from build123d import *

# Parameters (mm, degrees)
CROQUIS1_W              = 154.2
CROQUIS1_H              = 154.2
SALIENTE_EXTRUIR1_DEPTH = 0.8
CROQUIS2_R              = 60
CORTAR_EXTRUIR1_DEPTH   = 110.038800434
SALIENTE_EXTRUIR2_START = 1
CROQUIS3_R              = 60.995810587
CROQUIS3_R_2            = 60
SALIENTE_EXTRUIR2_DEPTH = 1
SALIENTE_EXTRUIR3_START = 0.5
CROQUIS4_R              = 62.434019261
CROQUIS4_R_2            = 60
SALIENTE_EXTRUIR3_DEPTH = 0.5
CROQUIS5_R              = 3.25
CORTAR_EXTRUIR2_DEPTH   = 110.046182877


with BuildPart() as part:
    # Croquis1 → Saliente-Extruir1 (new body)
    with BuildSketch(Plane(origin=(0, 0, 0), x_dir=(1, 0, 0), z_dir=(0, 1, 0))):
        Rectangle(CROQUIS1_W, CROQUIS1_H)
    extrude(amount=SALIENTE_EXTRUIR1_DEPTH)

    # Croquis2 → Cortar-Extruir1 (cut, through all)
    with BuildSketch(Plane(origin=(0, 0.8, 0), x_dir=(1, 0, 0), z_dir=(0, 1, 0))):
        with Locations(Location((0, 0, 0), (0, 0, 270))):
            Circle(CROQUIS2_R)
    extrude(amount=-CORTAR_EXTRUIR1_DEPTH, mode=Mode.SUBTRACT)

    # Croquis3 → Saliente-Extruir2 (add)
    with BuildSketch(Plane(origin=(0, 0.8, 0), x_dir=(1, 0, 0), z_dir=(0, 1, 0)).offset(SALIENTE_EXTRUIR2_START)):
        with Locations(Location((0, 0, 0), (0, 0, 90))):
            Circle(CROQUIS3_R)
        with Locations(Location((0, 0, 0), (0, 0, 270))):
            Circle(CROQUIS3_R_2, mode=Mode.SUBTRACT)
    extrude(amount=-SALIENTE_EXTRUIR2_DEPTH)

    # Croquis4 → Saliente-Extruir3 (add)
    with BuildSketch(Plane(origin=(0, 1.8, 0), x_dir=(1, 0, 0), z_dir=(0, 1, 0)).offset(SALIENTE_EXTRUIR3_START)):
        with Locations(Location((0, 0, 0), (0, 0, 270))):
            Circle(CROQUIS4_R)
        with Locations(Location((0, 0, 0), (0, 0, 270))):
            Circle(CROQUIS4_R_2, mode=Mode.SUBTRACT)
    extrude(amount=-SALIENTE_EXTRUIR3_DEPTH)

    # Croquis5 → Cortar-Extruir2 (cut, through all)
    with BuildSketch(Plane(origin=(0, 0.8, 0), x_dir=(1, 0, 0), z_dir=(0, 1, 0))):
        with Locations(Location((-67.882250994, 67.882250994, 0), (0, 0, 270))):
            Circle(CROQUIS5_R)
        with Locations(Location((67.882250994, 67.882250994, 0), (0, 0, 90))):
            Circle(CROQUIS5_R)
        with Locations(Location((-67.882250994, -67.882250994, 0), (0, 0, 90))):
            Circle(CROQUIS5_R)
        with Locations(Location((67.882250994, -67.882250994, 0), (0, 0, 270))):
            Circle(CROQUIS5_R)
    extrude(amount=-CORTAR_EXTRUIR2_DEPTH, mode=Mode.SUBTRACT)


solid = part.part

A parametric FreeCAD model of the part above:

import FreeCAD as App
import Part
import Sketcher
from FreeCAD import Vector
Q = App.Units.Quantity

doc = App.newDocument("Part")
body = doc.addObject("PartDesign::Body", "Body")

sketch1 = body.newObject("Sketcher::SketchObject", "Sketch")
sketch1.AttachmentSupport = (doc.getObject("XZ_Plane"), [""])
sketch1.MapMode = "FlatFace"
sketch1.addGeometry([
    Part.LineSegment(Vector(-77, -77, 0), Vector(-77, 77, 0)),
    Part.LineSegment(Vector(-77, 77, 0), Vector(77, 77, 0)),
    Part.LineSegment(Vector(77, 77, 0), Vector(77, -77, 0)),
    Part.LineSegment(Vector(77, -77, 0), Vector(-77, -77, 0)),
], False)
sketch1.addConstraint([
    Sketcher.Constraint("Coincident", 0, 2, 1, 1),
    Sketcher.Constraint("Coincident", 1, 2, 2, 1),
    Sketcher.Constraint("Coincident", 2, 2, 3, 1),
    Sketcher.Constraint("Coincident", 3, 2, 0, 1),
    Sketcher.Constraint("Vertical", 0),
    Sketcher.Constraint("Horizontal", 1),
    Sketcher.Constraint("Vertical", 2),
    Sketcher.Constraint("Horizontal", 3),
    Sketcher.Constraint("Symmetric", 0, 2, 2, 2, -1, 1),
    Sketcher.Constraint("Equal", 3, 0),
    Sketcher.Constraint("DistanceX", 1, 1, 1, 2, Q("154.2 mm")),
])
pad1 = body.newObject("PartDesign::Pad", "Pad")
pad1.Profile = sketch1
pad1.Length = 0.8
pad1.Reversed = True

sketch2 = body.newObject("Sketcher::SketchObject", "Sketch001")
sketch2.AttachmentSupport = (doc.getObject("XZ_Plane"), [""])
sketch2.MapMode = "FlatFace"
sketch2.AttachmentOffset = App.Placement(Vector(0, 0, -0.8), App.Rotation())
sketch2.addGeometry(Part.Circle(Vector(0, 0, 0), Vector(0, 0, 1), 60), False)
sketch2.addConstraint([
    Sketcher.Constraint("Coincident", 0, 3, -1, 1),
    Sketcher.Constraint("Diameter", 0, Q("120 mm")),
])
pocket1 = body.newObject("PartDesign::Pocket", "Pocket")
pocket1.Profile = sketch2
pocket1.Type = "ThroughAll"
pocket1.Reversed = True

sketch3 = body.newObject("Sketcher::SketchObject", "Sketch002")
sketch3.AttachmentSupport = (doc.getObject("XZ_Plane"), [""])
sketch3.MapMode = "FlatFace"
sketch3.AttachmentOffset = App.Placement(Vector(0, 0, -1.8), App.Rotation())
sketch3.addGeometry([
    Part.Circle(Vector(0, 0, 0), Vector(0, 0, 1), 61),
    Part.Circle(Vector(0, 0, 0), Vector(0, 0, 1), 60),
], False)
sketch3.addConstraint([
    Sketcher.Constraint("Coincident", 0, 3, -1, 1),
    Sketcher.Constraint("Coincident", 1, 3, -1, 1),
    Sketcher.Constraint("Diameter", 1, Q("120 mm")),
    Sketcher.Constraint("Diameter", 0, Q("121.991621 mm")),
])
pad2 = body.newObject("PartDesign::Pad", "Pad001")
pad2.Profile = sketch3
pad2.Length = 1

sketch4 = body.newObject("Sketcher::SketchObject", "Sketch003")
sketch4.AttachmentSupport = (doc.getObject("XZ_Plane"), [""])
sketch4.MapMode = "FlatFace"
sketch4.AttachmentOffset = App.Placement(Vector(0, 0, -2.3), App.Rotation())
sketch4.addGeometry([
    Part.Circle(Vector(0, 0, 0), Vector(0, 0, 1), 62),
    Part.Circle(Vector(0, 0, 0), Vector(0, 0, 1), 60),
], False)
sketch4.addConstraint([
    Sketcher.Constraint("Coincident", 0, 3, -1, 1),
    Sketcher.Constraint("Coincident", 1, 3, -1, 1),
    Sketcher.Constraint("Diameter", 1, Q("120 mm")),
    Sketcher.Constraint("Diameter", 0, Q("124.868039 mm")),
])
pad3 = body.newObject("PartDesign::Pad", "Pad002")
pad3.Profile = sketch4
pad3.Length = 0.5

sketch5 = body.newObject("Sketcher::SketchObject", "Sketch004")
sketch5.AttachmentSupport = (doc.getObject("XZ_Plane"), [""])
sketch5.MapMode = "FlatFace"
sketch5.AttachmentOffset = App.Placement(Vector(0, 0, -0.8), App.Rotation())
sketch5.addGeometry([
    Part.Circle(Vector(-67.9, -67.9, 0), Vector(0, 0, 1), 3.2),
    Part.Circle(Vector(67.9, -67.9, 0), Vector(0, 0, 1), 3.2),
    Part.Circle(Vector(-67.9, 67.9, 0), Vector(0, 0, 1), 3.2),
    Part.Circle(Vector(67.9, 67.9, 0), Vector(0, 0, 1), 3.2),
], False)
sketch5.addConstraint([
    Sketcher.Constraint("Equal", 0, 1),
    Sketcher.Constraint("Equal", 1, 2),
    Sketcher.Constraint("Equal", 2, 3),
    Sketcher.Constraint("Symmetric", 1, 3, 2, 3, -1, 1),
    Sketcher.Constraint("Symmetric", 0, 3, 3, 3, -1, 1),
    Sketcher.Constraint("Symmetric", 0, 3, 1, 3, -2),
    Sketcher.Constraint("Diameter", 0, Q("6.5 mm")),
    Sketcher.Constraint("DistanceX", 0, 3, 1, 3, Q("135.764502 mm")),
    Sketcher.Constraint("DistanceY", 0, 3, 2, 3, Q("135.764502 mm")),
])
pocket2 = body.newObject("PartDesign::Pocket", "Pocket001")
pocket2.Profile = sketch5
pocket2.Type = "ThroughAll"
pocket2.Reversed = True

doc.recompute()
